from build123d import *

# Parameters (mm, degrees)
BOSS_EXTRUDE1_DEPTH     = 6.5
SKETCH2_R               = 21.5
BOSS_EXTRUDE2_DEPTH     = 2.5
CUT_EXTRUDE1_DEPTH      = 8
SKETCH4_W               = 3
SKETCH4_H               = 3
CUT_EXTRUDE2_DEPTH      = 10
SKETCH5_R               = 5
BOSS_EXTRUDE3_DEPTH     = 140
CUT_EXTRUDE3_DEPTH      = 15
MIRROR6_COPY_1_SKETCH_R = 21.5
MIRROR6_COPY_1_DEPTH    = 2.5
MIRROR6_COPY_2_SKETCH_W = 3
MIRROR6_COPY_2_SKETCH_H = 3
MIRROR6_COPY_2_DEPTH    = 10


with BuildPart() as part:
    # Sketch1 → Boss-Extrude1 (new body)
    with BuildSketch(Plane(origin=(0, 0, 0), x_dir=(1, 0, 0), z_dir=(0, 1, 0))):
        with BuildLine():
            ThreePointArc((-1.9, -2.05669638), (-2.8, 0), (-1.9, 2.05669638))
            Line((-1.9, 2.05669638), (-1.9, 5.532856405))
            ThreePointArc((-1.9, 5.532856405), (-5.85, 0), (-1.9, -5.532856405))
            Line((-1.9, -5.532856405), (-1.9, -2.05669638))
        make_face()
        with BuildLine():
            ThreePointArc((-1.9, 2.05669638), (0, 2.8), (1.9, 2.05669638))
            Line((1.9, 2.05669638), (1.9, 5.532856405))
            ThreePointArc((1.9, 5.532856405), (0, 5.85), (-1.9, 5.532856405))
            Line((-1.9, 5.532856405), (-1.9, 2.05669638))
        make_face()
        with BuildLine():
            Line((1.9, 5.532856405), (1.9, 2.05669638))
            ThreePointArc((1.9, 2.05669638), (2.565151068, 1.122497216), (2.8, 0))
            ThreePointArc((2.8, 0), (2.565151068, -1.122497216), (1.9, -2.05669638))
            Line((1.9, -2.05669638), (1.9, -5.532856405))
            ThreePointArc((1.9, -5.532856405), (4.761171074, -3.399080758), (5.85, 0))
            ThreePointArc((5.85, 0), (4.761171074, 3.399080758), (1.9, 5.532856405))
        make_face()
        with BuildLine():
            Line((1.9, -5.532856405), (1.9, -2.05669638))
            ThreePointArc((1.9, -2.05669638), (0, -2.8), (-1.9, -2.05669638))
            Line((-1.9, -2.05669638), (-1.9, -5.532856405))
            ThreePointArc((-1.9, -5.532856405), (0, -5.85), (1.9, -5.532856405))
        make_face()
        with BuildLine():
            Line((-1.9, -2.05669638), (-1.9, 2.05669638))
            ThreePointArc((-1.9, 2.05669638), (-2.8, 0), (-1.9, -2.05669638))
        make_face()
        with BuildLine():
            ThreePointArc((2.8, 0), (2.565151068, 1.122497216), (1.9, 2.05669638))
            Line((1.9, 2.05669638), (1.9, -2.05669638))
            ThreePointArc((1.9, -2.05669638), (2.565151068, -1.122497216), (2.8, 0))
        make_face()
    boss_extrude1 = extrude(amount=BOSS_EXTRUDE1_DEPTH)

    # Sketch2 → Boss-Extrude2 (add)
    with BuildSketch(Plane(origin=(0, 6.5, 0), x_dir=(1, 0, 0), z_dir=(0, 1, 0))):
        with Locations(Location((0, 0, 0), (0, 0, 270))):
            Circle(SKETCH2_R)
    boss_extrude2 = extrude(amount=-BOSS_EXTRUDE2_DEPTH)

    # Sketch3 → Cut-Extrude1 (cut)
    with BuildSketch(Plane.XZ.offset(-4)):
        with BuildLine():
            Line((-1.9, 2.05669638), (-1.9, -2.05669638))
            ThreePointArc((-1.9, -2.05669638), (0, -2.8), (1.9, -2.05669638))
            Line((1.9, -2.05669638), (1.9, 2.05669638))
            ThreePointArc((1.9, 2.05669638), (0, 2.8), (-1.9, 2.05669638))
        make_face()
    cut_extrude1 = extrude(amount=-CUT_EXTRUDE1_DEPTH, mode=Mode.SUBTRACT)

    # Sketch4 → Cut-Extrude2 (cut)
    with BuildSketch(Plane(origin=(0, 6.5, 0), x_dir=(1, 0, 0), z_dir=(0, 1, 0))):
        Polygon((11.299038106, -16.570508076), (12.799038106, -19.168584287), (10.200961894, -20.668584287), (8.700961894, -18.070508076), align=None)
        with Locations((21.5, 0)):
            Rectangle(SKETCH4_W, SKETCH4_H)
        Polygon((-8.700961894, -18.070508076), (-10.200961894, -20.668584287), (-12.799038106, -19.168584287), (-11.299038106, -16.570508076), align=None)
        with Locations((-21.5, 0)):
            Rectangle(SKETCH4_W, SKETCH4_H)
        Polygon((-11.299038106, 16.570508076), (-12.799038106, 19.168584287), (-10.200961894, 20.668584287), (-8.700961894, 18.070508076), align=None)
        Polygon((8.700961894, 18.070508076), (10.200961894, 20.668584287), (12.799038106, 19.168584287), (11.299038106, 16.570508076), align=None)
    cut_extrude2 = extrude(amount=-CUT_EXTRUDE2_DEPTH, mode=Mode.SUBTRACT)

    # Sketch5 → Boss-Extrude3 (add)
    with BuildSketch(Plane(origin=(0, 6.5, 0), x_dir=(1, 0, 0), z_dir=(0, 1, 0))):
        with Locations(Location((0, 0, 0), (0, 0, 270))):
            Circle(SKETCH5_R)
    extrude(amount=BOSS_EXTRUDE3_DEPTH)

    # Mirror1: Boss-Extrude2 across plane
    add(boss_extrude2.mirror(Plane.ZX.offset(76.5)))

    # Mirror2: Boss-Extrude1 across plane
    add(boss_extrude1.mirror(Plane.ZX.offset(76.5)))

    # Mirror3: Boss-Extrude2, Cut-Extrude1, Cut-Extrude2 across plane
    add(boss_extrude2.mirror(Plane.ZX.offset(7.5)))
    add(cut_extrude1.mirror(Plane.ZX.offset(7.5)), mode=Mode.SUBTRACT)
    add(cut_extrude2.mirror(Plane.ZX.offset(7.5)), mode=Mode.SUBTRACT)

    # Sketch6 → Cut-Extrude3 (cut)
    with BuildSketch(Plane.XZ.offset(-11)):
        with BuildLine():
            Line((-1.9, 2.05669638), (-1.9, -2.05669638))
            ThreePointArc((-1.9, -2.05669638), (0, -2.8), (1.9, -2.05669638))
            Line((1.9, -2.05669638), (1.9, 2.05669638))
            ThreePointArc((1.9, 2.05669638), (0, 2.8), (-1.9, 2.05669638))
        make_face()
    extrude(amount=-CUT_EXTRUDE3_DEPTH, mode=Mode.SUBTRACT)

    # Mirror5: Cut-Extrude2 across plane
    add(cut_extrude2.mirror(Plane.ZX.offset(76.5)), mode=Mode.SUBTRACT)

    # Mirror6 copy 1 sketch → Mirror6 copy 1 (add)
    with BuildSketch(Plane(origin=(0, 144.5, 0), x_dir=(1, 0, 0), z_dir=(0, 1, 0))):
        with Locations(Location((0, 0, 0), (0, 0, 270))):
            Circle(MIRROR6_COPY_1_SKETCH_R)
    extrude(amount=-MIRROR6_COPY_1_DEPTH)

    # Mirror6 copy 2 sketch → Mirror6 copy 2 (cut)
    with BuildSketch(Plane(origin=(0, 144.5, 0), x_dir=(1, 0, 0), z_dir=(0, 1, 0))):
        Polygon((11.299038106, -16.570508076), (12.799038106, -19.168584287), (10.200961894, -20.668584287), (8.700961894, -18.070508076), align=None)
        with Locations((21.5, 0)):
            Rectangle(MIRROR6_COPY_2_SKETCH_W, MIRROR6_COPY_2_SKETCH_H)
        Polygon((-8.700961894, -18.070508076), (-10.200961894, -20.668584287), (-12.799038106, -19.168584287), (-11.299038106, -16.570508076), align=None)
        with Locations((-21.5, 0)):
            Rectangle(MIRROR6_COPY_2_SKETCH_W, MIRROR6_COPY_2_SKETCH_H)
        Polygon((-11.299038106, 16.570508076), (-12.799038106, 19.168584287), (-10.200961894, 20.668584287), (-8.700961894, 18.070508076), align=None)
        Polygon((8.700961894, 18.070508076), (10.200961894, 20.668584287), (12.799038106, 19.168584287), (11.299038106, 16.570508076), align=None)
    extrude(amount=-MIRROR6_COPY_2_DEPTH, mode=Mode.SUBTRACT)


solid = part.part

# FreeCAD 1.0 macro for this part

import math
import FreeCAD as App
import Part
import Sketcher
from FreeCAD import Vector
Q = App.Units.Quantity

doc = App.newDocument("Part")
body = doc.addObject("PartDesign::Body", "Body")

sketch1 = body.newObject("Sketcher::SketchObject", "Sketch")
sketch1.AttachmentSupport = (doc.getObject("XZ_Plane"), [""])
sketch1.MapMode = "FlatFace"
sketch1.addGeometry(Part.ArcOfCircle(Part.Circle(Vector(0, 0, 0), Vector(0, 0, 1), 5.9), math.radians(0), math.radians(71)), False)
sketch1.addGeometry(Part.ArcOfCircle(Part.Circle(Vector(0, 0, 0), Vector(0, 0, 1), 5.9), math.radians(-71), math.radians(0)), False)
sketch1.addGeometry(Part.ArcOfCircle(Part.Circle(Vector(0, 0, 0), Vector(0, 0, 1), 5.8), math.radians(-109), math.radians(-71)), False)
sketch1.addGeometry(Part.ArcOfCircle(Part.Circle(Vector(0, 0, 0), Vector(0, 0, 1), 5.8), math.radians(109), math.radians(251)), False)
sketch1.addGeometry(Part.ArcOfCircle(Part.Circle(Vector(0, 0, 0), Vector(0, 0, 1), 5.8), math.radians(71), math.radians(109)), False)
sketch1.addGeometry(Part.ArcOfCircle(Part.Circle(Vector(0, 0, 0), Vector(0, 0, 1), 2.8), math.radians(-133), math.radians(-47)), False)
sketch1.addGeometry(Part.LineSegment(Vector(1.9, -2.1, 0), Vector(1.9, 2.1, 0)), False)
sketch1.addGeometry(Part.ArcOfCircle(Part.Circle(Vector(0, 0, 0), Vector(0, 0, 1), 2.8), math.radians(47), math.radians(133)), False)
sketch1.addGeometry(Part.LineSegment(Vector(-1.9, 2.1, 0), Vector(-1.9, -2.1, 0)), False)
sketch1.addConstraint(Sketcher.Constraint("Tangent", 0, 1, 1, 2))
sketch1.addConstraint(Sketcher.Constraint("Tangent", 1, 1, 2, 2))
sketch1.addConstraint(Sketcher.Constraint("Tangent", 2, 1, 3, 2))
sketch1.addConstraint(Sketcher.Constraint("Tangent", 3, 1, 4, 2))
sketch1.addConstraint(Sketcher.Constraint("Tangent", 4, 1, 0, 2))
sketch1.addConstraint(Sketcher.Constraint("Coincident", 5, 2, 6, 1))
sketch1.addConstraint(Sketcher.Constraint("Coincident", 6, 2, 7, 1))
sketch1.addConstraint(Sketcher.Constraint("Coincident", 7, 2, 8, 1))
sketch1.addConstraint(Sketcher.Constraint("Coincident", 8, 2, 5, 1))
sketch1.addConstraint(Sketcher.Constraint("Vertical", 6))
sketch1.addConstraint(Sketcher.Constraint("Vertical", 8))
sketch1.addConstraint(Sketcher.Constraint("Coincident", 0, 3, -1, 1))
sketch1.addConstraint(Sketcher.Constraint("Coincident", 2, 3, -1, 1))
sketch1.addConstraint(Sketcher.Constraint("Coincident", 5, 3, -1, 1))
sketch1.addConstraint(Sketcher.Constraint("Coincident", 7, 3, -1, 1))
sketch1.addConstraint(Sketcher.Constraint("Equal", 5, 7))
sketch1.addConstraint(Sketcher.Constraint("PointOnObject", 0, 1, -1))
sketch1.addConstraint(Sketcher.Constraint("Horizontal", 1, 1, 2, 1))
sketch1.addConstraint(Sketcher.Constraint("Horizontal", 3, 1, 4, 1))
sketch1.addConstraint(Sketcher.Constraint("Horizontal", 6, 2, 7, 2))
sketch1.addConstraint(Sketcher.Constraint("Vertical", 2, 1, 3, 1))
sketch1.addConstraint(Sketcher.Constraint("Vertical", 4, 1, 5, 2))
sketch1.addConstraint(Sketcher.Constraint("Radius", 5, 2.8))
sketch1.addConstraint(Sketcher.Constraint("Radius", 0, 5.85))
sketch1.addConstraint(Sketcher.Constraint("DistanceX", -1, 1, 1, 1, 1.9))
pad1 = body.newObject("PartDesign::Pad", "Pad")
pad1.Profile = sketch1
pad1.Length = 6.5
pad1.Reversed = True

sketch2 = body.newObject("Sketcher::SketchObject", "Sketch001")
sketch2.AttachmentSupport = (doc.getObject("XZ_Plane"), [""])
sketch2.MapMode = "FlatFace"
sketch2.AttachmentOffset = App.Placement(Vector(0, 0, -6.5), App.Rotation())
sketch2.addGeometry(Part.Circle(Vector(0, 0, 0), Vector(0, 0, 1), 22), False)
sketch2.addConstraint(Sketcher.Constraint("Coincident", 0, 3, -1, 1))
sketch2.addConstraint(Sketcher.Constraint("Diameter", 0, 43.0))
pad2 = body.newObject("PartDesign::Pad", "Pad001")
pad2.Profile = sketch2
pad2.Length = 2.5

sketch3 = body.newObject("Sketcher::SketchObject", "Sketch002")
sketch3.AttachmentSupport = (doc.getObject("XZ_Plane"), [""])
sketch3.MapMode = "FlatFace"
sketch3.AttachmentOffset = App.Placement(Vector(0, 0, -4), App.Rotation())
sketch3.addGeometry(Part.LineSegment(Vector(-1.9, 2.1, 0), Vector(-1.9, -2.1, 0)), False)
sketch3.addGeometry(Part.ArcOfCircle(Part.Circle(Vector(0, 0, 0), Vector(0, 0, 1), 2.8), math.radians(-133), math.radians(-47)), False)
sketch3.addGeometry(Part.LineSegment(Vector(1.9, -2.1, 0), Vector(1.9, 2.1, 0)), False)
sketch3.addGeometry(Part.ArcOfCircle(Part.Circle(Vector(0, 0, 0), Vector(0, 0, 1), 2.8), math.radians(47), math.radians(133)), False)
sketch3.addConstraint(Sketcher.Constraint("Coincident", 0, 2, 1, 1))
sketch3.addConstraint(Sketcher.Constraint("Coincident", 1, 2, 2, 1))
sketch3.addConstraint(Sketcher.Constraint("Coincident", 2, 2, 3, 1))
sketch3.addConstraint(Sketcher.Constraint("Coincident", 3, 2, 0, 1))
sketch3.addConstraint(Sketcher.Constraint("Vertical", 0))
sketch3.addConstraint(Sketcher.Constraint("Vertical", 2))
sketch3.addConstraint(Sketcher.Constraint("Coincident", 1, 3, -1, 1))
sketch3.addConstraint(Sketcher.Constraint("Coincident", 3, 3, -1, 1))
sketch3.addConstraint(Sketcher.Constraint("Equal", 1, 3))
sketch3.addConstraint(Sketcher.Constraint("Horizontal", 0, 2, 1, 2))
sketch3.addConstraint(Sketcher.Constraint("Radius", 1, 2.8))
sketch3.addConstraint(Sketcher.Constraint("DistanceX", 0, 2, -1, 1, 1.9))
pocket1 = body.newObject("PartDesign::Pocket", "Pocket")
pocket1.Profile = sketch3
pocket1.Length = 8

sketch4 = body.newObject("Sketcher::SketchObject", "Sketch003")
sketch4.AttachmentSupport = (doc.getObject("XZ_Plane"), [""])
sketch4.MapMode = "FlatFace"
sketch4.AttachmentOffset = App.Placement(Vector(0, 0, -6.5), App.Rotation())
sketch4.addGeometry(Part.LineSegment(Vector(12.8, 19.2, 0), Vector(11.3, 16.6, 0)), False)
sketch4.addGeometry(Part.LineSegment(Vector(11.3, 16.6, 0), Vector(8.7, 18.1, 0)), False)
sketch4.addGeometry(Part.LineSegment(Vector(8.7, 18.1, 0), Vector(10.2, 20.7, 0)), False)
sketch4.addGeometry(Part.LineSegment(Vector(10.2, 20.7, 0), Vector(12.8, 19.2, 0)), False)
sketch4.addGeometry(Part.LineSegment(Vector(20, -1.5, 0), Vector(20, 1.5, 0)), False)
sketch4.addGeometry(Part.LineSegment(Vector(20, 1.5, 0), Vector(23, 1.5, 0)), False)
sketch4.addGeometry(Part.LineSegment(Vector(23, 1.5, 0), Vector(23, -1.5, 0)), False)
sketch4.addGeometry(Part.LineSegment(Vector(23, -1.5, 0), Vector(20, -1.5, 0)), False)
sketch4.addGeometry(Part.LineSegment(Vector(-10.2, 20.7, 0), Vector(-8.7, 18.1, 0)), False)
sketch4.addGeometry(Part.LineSegment(Vector(-8.7, 18.1, 0), Vector(-11.3, 16.6, 0)), False)
sketch4.addGeometry(Part.LineSegment(Vector(-11.3, 16.6, 0), Vector(-12.8, 19.2, 0)), False)
sketch4.addGeometry(Part.LineSegment(Vector(-12.8, 19.2, 0), Vector(-10.2, 20.7, 0)), False)
sketch4.addGeometry(Part.LineSegment(Vector(-23, -1.5, 0), Vector(-23, 1.5, 0)), False)
sketch4.addGeometry(Part.LineSegment(Vector(-23, 1.5, 0), Vector(-20, 1.5, 0)), False)
sketch4.addGeometry(Part.LineSegment(Vector(-20, 1.5, 0), Vector(-20, -1.5, 0)), False)
sketch4.addGeometry(Part.LineSegment(Vector(-20, -1.5, 0), Vector(-23, -1.5, 0)), False)
sketch4.addGeometry(Part.LineSegment(Vector(-12.8, -19.2, 0), Vector(-11.3, -16.6, 0)), False)
sketch4.addGeometry(Part.LineSegment(Vector(-11.3, -16.6, 0), Vector(-8.7, -18.1, 0)), False)
sketch4.addGeometry(Part.LineSegment(Vector(-8.7, -18.1, 0), Vector(-10.2, -20.7, 0)), False)
sketch4.addGeometry(Part.LineSegment(Vector(-10.2, -20.7, 0), Vector(-12.8, -19.2, 0)), False)
sketch4.addGeometry(Part.LineSegment(Vector(10.2, -20.7, 0), Vector(8.7, -18.1, 0)), False)
sketch4.addGeometry(Part.LineSegment(Vector(8.7, -18.1, 0), Vector(11.3, -16.6, 0)), False)
sketch4.addGeometry(Part.LineSegment(Vector(11.3, -16.6, 0), Vector(12.8, -19.2, 0)), False)
sketch4.addGeometry(Part.LineSegment(Vector(12.8, -19.2, 0), Vector(10.2, -20.7, 0)), False)
sketch4.addConstraint(Sketcher.Constraint("Coincident", 0, 2, 1, 1))
sketch4.addConstraint(Sketcher.Constraint("Coincident", 1, 2, 2, 1))
sketch4.addConstraint(Sketcher.Constraint("Coincident", 2, 2, 3, 1))
sketch4.addConstraint(Sketcher.Constraint("Coincident", 3, 2, 0, 1))
sketch4.addConstraint(Sketcher.Constraint("Coincident", 4, 2, 5, 1))
sketch4.addConstraint(Sketcher.Constraint("Coincident", 5, 2, 6, 1))
sketch4.addConstraint(Sketcher.Constraint("Coincident", 6, 2, 7, 1))
sketch4.addConstraint(Sketcher.Constraint("Coincident", 7, 2, 4, 1))
sketch4.addConstraint(Sketcher.Constraint("Coincident", 8, 2, 9, 1))
sketch4.addConstraint(Sketcher.Constraint("Coincident", 9, 2, 10, 1))
sketch4.addConstraint(Sketcher.Constraint("Coincident", 10, 2, 11, 1))
sketch4.addConstraint(Sketcher.Constraint("Coincident", 11, 2, 8, 1))
sketch4.addConstraint(Sketcher.Constraint("Coincident", 12, 2, 13, 1))
sketch4.addConstraint(Sketcher.Constraint("Coincident", 13, 2, 14, 1))
sketch4.addConstraint(Sketcher.Constraint("Coincident", 14, 2, 15, 1))
sketch4.addConstraint(Sketcher.Constraint("Coincident", 15, 2, 12, 1))
sketch4.addConstraint(Sketcher.Constraint("Coincident", 16, 2, 17, 1))
sketch4.addConstraint(Sketcher.Constraint("Coincident", 17, 2, 18, 1))
sketch4.addConstraint(Sketcher.Constraint("Coincident", 18, 2, 19, 1))
sketch4.addConstraint(Sketcher.Constraint("Coincident", 19, 2, 16, 1))
sketch4.addConstraint(Sketcher.Constraint("Coincident", 20, 2, 21, 1))
sketch4.addConstraint(Sketcher.Constraint("Coincident", 21, 2, 22, 1))
sketch4.addConstraint(Sketcher.Constraint("Coincident", 22, 2, 23, 1))
sketch4.addConstraint(Sketcher.Constraint("Coincident", 23, 2, 20, 1))
sketch4.addConstraint(Sketcher.Constraint("Vertical", 4))
sketch4.addConstraint(Sketcher.Constraint("Horizontal", 5))
sketch4.addConstraint(Sketcher.Constraint("Vertical", 6))
sketch4.addConstraint(Sketcher.Constraint("Horizontal", 7))
sketch4.addConstraint(Sketcher.Constraint("Vertical", 12))
sketch4.addConstraint(Sketcher.Constraint("Horizontal", 13))
sketch4.addConstraint(Sketcher.Constraint("Vertical", 14))
sketch4.addConstraint(Sketcher.Constraint("Horizontal", 15))
sketch4.addConstraint(Sketcher.Constraint("Symmetric", 6, 2, 12, 2, -1, 1))
sketch4.addConstraint(Sketcher.Constraint("Symmetric", 4, 2, 14, 2, -1, 1))
sketch4.addConstraint(Sketcher.Constraint("Symmetric", 0, 2, 16, 2, -1, 1))
sketch4.addConstraint(Sketcher.Constraint("Symmetric", 1, 2, 17, 2, -1, 1))
sketch4.addConstraint(Sketcher.Constraint("Symmetric", 2, 2, 18, 2, -1, 1))
sketch4.addConstraint(Sketcher.Constraint("Symmetric", 3, 2, 19, 2, -1, 1))
sketch4.addConstraint(Sketcher.Constraint("Symmetric", 8, 2, 20, 2, -1, 1))
sketch4.addConstraint(Sketcher.Constraint("Symmetric", 9, 2, 21, 2, -1, 1))
sketch4.addConstraint(Sketcher.Constraint("Symmetric", 10, 2, 22, 2, -1, 1))
sketch4.addConstraint(Sketcher.Constraint("Symmetric", 11, 2, 23, 2, -1, 1))
sketch4.addConstraint(Sketcher.Constraint("Symmetric", 1, 2, 8, 2, -2))
sketch4.addConstraint(Sketcher.Constraint("Symmetric", 0, 2, 9, 2, -2))
sketch4.addConstraint(Sketcher.Constraint("Symmetric", 3, 2, 10, 2, -2))
sketch4.addConstraint(Sketcher.Constraint("Symmetric", 2, 2, 11, 2, -2))
sketch4.addConstraint(Sketcher.Constraint("Perpendicular", 0, 1))
sketch4.addConstraint(Sketcher.Constraint("Perpendicular", 1, 2))
sketch4.addConstraint(Sketcher.Constraint("Perpendicular", 2, 3))
sketch4.addConstraint(Sketcher.Constraint("Horizontal", 5, 2, 12, 2))
sketch4.addConstraint(Sketcher.Constraint("Equal", 15, 4))
sketch4.addConstraint(Sketcher.Constraint("Equal", 0, 1))
sketch4.addConstraint(Sketcher.Constraint("DistanceX", 5, 1, 5, 2, 3.0))
sketch4.addConstraint(Sketcher.Constraint("Angle", 0, Q("-120 deg")))
sketch4.addConstraint(Sketcher.Constraint("Distance", 0, 3.0))
sketch4.addConstraint(Sketcher.Constraint("DistanceX", -1, 1, 4, 2, 20.0))
sketch4.addConstraint(Sketcher.Constraint("DistanceX", 8, 2, 0, 2, 20.0))
sketch4.addConstraint(Sketcher.Constraint("DistanceY", -1, 1, 0, 2, 16.570508))
pocket2 = body.newObject("PartDesign::Pocket", "Pocket001")
pocket2.Profile = sketch4
pocket2.Length = 10
pocket2.Reversed = True

sketch5 = body.newObject("Sketcher::SketchObject", "Sketch004")
sketch5.AttachmentSupport = (doc.getObject("XZ_Plane"), [""])
sketch5.MapMode = "FlatFace"
sketch5.AttachmentOffset = App.Placement(Vector(0, 0, -6.5), App.Rotation())
sketch5.addGeometry(Part.Circle(Vector(0, 0, 0), Vector(0, 0, 1), 5), False)
sketch5.addConstraint(Sketcher.Constraint("Coincident", 0, 3, -1, 1))
sketch5.addConstraint(Sketcher.Constraint("Diameter", 0, 10.0))
pad3 = body.newObject("PartDesign::Pad", "Pad002")
pad3.Profile = sketch5
pad3.Length = 140
pad3.Reversed = True
doc.recompute()

datumplane = body.newObject("PartDesign::Plane", "DatumPlane")
datumplane.AttachmentSupport = (doc.getObject("XZ_Plane"), [""])
datumplane.MapMode = "FlatFace"
datumplane.AttachmentOffset = App.Placement(Vector(0, 0, -76.5), App.Rotation())
mirrored = body.newObject("PartDesign::Mirrored", "Mirrored")
mirrored.Originals = [pad2]
mirrored.MirrorPlane = (datumplane, [""])
body.Tip = mirrored
doc.recompute()

datumplane2 = body.newObject("PartDesign::Plane", "DatumPlane001")
datumplane2.AttachmentSupport = (doc.getObject("XZ_Plane"), [""])
datumplane2.MapMode = "FlatFace"
datumplane2.AttachmentOffset = App.Placement(Vector(0, 0, -76.5), App.Rotation())
mirrored2 = body.newObject("PartDesign::Mirrored", "Mirrored001")
mirrored2.Originals = [pad1]
mirrored2.MirrorPlane = (datumplane2, [""])
body.Tip = mirrored2
doc.recompute()

datumplane3 = body.newObject("PartDesign::Plane", "DatumPlane002")
datumplane3.AttachmentSupport = (doc.getObject("XZ_Plane"), [""])
datumplane3.MapMode = "FlatFace"
datumplane3.AttachmentOffset = App.Placement(Vector(0, 0, -7.5), App.Rotation())
mirrored3 = body.newObject("PartDesign::Mirrored", "Mirrored002")
mirrored3.Originals = [pad2, pocket1, pocket2]
mirrored3.MirrorPlane = (datumplane3, [""])
body.Tip = mirrored3

sketch6 = body.newObject("Sketcher::SketchObject", "Sketch005")
sketch6.AttachmentSupport = (doc.getObject("XZ_Plane"), [""])
sketch6.MapMode = "FlatFace"
sketch6.AttachmentOffset = App.Placement(Vector(0, 0, -11), App.Rotation())
sketch6.addGeometry(Part.LineSegment(Vector(-1.9, 2.1, 0), Vector(-1.9, -2.1, 0)), False)
sketch6.addGeometry(Part.ArcOfCircle(Part.Circle(Vector(0, 0, 0), Vector(0, 0, 1), 2.8), math.radians(-133), math.radians(-47)), False)
sketch6.addGeometry(Part.LineSegment(Vector(1.9, -2.1, 0), Vector(1.9, 2.1, 0)), False)
sketch6.addGeometry(Part.ArcOfCircle(Part.Circle(Vector(0, 0, 0), Vector(0, 0, 1), 2.8), math.radians(47), math.radians(133)), False)
sketch6.addConstraint(Sketcher.Constraint("Coincident", 0, 2, 1, 1))
sketch6.addConstraint(Sketcher.Constraint("Coincident", 1, 2, 2, 1))
sketch6.addConstraint(Sketcher.Constraint("Coincident", 2, 2, 3, 1))
sketch6.addConstraint(Sketcher.Constraint("Coincident", 3, 2, 0, 1))
sketch6.addConstraint(Sketcher.Constraint("Vertical", 0))
sketch6.addConstraint(Sketcher.Constraint("Vertical", 2))
sketch6.addConstraint(Sketcher.Constraint("Coincident", 1, 3, -1, 1))
sketch6.addConstraint(Sketcher.Constraint("Coincident", 3, 3, -1, 1))
sketch6.addConstraint(Sketcher.Constraint("Equal", 1, 3))
sketch6.addConstraint(Sketcher.Constraint("Horizontal", 0, 2, 1, 2))
sketch6.addConstraint(Sketcher.Constraint("Radius", 1, 2.8))
sketch6.addConstraint(Sketcher.Constraint("DistanceX", 0, 2, -1, 1, 1.9))
pocket3 = body.newObject("PartDesign::Pocket", "Pocket002")
pocket3.Profile = sketch6
pocket3.Length = 15
doc.recompute()

datumplane4 = body.newObject("PartDesign::Plane", "DatumPlane003")
datumplane4.AttachmentSupport = (doc.getObject("XZ_Plane"), [""])
datumplane4.MapMode = "FlatFace"
datumplane4.AttachmentOffset = App.Placement(Vector(0, 0, -76.5), App.Rotation())
mirrored4 = body.newObject("PartDesign::Mirrored", "Mirrored003")
mirrored4.Originals = [pocket2]
mirrored4.MirrorPlane = (datumplane4, [""])
body.Tip = mirrored4

sketch7 = body.newObject("Sketcher::SketchObject", "Sketch006")
sketch7.AttachmentSupport = (doc.getObject("XZ_Plane"), [""])
sketch7.MapMode = "FlatFace"
sketch7.AttachmentOffset = App.Placement(Vector(0, 0, -144.5), App.Rotation())
sketch7.addGeometry(Part.Circle(Vector(0, 0, 0), Vector(0, 0, 1), 22), False)
sketch7.addConstraint(Sketcher.Constraint("Coincident", 0, 3, -1, 1))
sketch7.addConstraint(Sketcher.Constraint("Diameter", 0, 43.0))
pad4 = body.newObject("PartDesign::Pad", "Pad003")
pad4.Profile = sketch7
pad4.Length = 2.5

sketch8 = body.newObject("Sketcher::SketchObject", "Sketch007")
sketch8.AttachmentSupport = (doc.getObject("XZ_Plane"), [""])
sketch8.MapMode = "FlatFace"
sketch8.AttachmentOffset = App.Placement(Vector(0, 0, -144.5), App.Rotation())
sketch8.addGeometry(Part.LineSegment(Vector(12.8, 19.2, 0), Vector(11.3, 16.6, 0)), False)
sketch8.addGeometry(Part.LineSegment(Vector(11.3, 16.6, 0), Vector(8.7, 18.1, 0)), False)
sketch8.addGeometry(Part.LineSegment(Vector(8.7, 18.1, 0), Vector(10.2, 20.7, 0)), False)
sketch8.addGeometry(Part.LineSegment(Vector(10.2, 20.7, 0), Vector(12.8, 19.2, 0)), False)
sketch8.addGeometry(Part.LineSegment(Vector(20, -1.5, 0), Vector(20, 1.5, 0)), False)
sketch8.addGeometry(Part.LineSegment(Vector(20, 1.5, 0), Vector(23, 1.5, 0)), False)
sketch8.addGeometry(Part.LineSegment(Vector(23, 1.5, 0), Vector(23, -1.5, 0)), False)
sketch8.addGeometry(Part.LineSegment(Vector(23, -1.5, 0), Vector(20, -1.5, 0)), False)
sketch8.addGeometry(Part.LineSegment(Vector(-10.2, 20.7, 0), Vector(-8.7, 18.1, 0)), False)
sketch8.addGeometry(Part.LineSegment(Vector(-8.7, 18.1, 0), Vector(-11.3, 16.6, 0)), False)
sketch8.addGeometry(Part.LineSegment(Vector(-11.3, 16.6, 0), Vector(-12.8, 19.2, 0)), False)
sketch8.addGeometry(Part.LineSegment(Vector(-12.8, 19.2, 0), Vector(-10.2, 20.7, 0)), False)
sketch8.addGeometry(Part.LineSegment(Vector(-23, -1.5, 0), Vector(-23, 1.5, 0)), False)
sketch8.addGeometry(Part.LineSegment(Vector(-23, 1.5, 0), Vector(-20, 1.5, 0)), False)
sketch8.addGeometry(Part.LineSegment(Vector(-20, 1.5, 0), Vector(-20, -1.5, 0)), False)
sketch8.addGeometry(Part.LineSegment(Vector(-20, -1.5, 0), Vector(-23, -1.5, 0)), False)
sketch8.addGeometry(Part.LineSegment(Vector(-12.8, -19.2, 0), Vector(-11.3, -16.6, 0)), False)
sketch8.addGeometry(Part.LineSegment(Vector(-11.3, -16.6, 0), Vector(-8.7, -18.1, 0)), False)
sketch8.addGeometry(Part.LineSegment(Vector(-8.7, -18.1, 0), Vector(-10.2, -20.7, 0)), False)
sketch8.addGeometry(Part.LineSegment(Vector(-10.2, -20.7, 0), Vector(-12.8, -19.2, 0)), False)
sketch8.addGeometry(Part.LineSegment(Vector(10.2, -20.7, 0), Vector(8.7, -18.1, 0)), False)
sketch8.addGeometry(Part.LineSegment(Vector(8.7, -18.1, 0), Vector(11.3, -16.6, 0)), False)
sketch8.addGeometry(Part.LineSegment(Vector(11.3, -16.6, 0), Vector(12.8, -19.2, 0)), False)
sketch8.addGeometry(Part.LineSegment(Vector(12.8, -19.2, 0), Vector(10.2, -20.7, 0)), False)
sketch8.addConstraint(Sketcher.Constraint("Coincident", 0, 2, 1, 1))
sketch8.addConstraint(Sketcher.Constraint("Coincident", 1, 2, 2, 1))
sketch8.addConstraint(Sketcher.Constraint("Coincident", 2, 2, 3, 1))
sketch8.addConstraint(Sketcher.Constraint("Coincident", 3, 2, 0, 1))
sketch8.addConstraint(Sketcher.Constraint("Coincident", 4, 2, 5, 1))
sketch8.addConstraint(Sketcher.Constraint("Coincident", 5, 2, 6, 1))
sketch8.addConstraint(Sketcher.Constraint("Coincident", 6, 2, 7, 1))
sketch8.addConstraint(Sketcher.Constraint("Coincident", 7, 2, 4, 1))
sketch8.addConstraint(Sketcher.Constraint("Coincident", 8, 2, 9, 1))
sketch8.addConstraint(Sketcher.Constraint("Coincident", 9, 2, 10, 1))
sketch8.addConstraint(Sketcher.Constraint("Coincident", 10, 2, 11, 1))
sketch8.addConstraint(Sketcher.Constraint("Coincident", 11, 2, 8, 1))
sketch8.addConstraint(Sketcher.Constraint("Coincident", 12, 2, 13, 1))
sketch8.addConstraint(Sketcher.Constraint("Coincident", 13, 2, 14, 1))
sketch8.addConstraint(Sketcher.Constraint("Coincident", 14, 2, 15, 1))
sketch8.addConstraint(Sketcher.Constraint("Coincident", 15, 2, 12, 1))
sketch8.addConstraint(Sketcher.Constraint("Coincident", 16, 2, 17, 1))
sketch8.addConstraint(Sketcher.Constraint("Coincident", 17, 2, 18, 1))
sketch8.addConstraint(Sketcher.Constraint("Coincident", 18, 2, 19, 1))
sketch8.addConstraint(Sketcher.Constraint("Coincident", 19, 2, 16, 1))
sketch8.addConstraint(Sketcher.Constraint("Coincident", 20, 2, 21, 1))
sketch8.addConstraint(Sketcher.Constraint("Coincident", 21, 2, 22, 1))
sketch8.addConstraint(Sketcher.Constraint("Coincident", 22, 2, 23, 1))
sketch8.addConstraint(Sketcher.Constraint("Coincident", 23, 2, 20, 1))
sketch8.addConstraint(Sketcher.Constraint("Vertical", 4))
sketch8.addConstraint(Sketcher.Constraint("Horizontal", 5))
sketch8.addConstraint(Sketcher.Constraint("Vertical", 6))
sketch8.addConstraint(Sketcher.Constraint("Horizontal", 7))
sketch8.addConstraint(Sketcher.Constraint("Vertical", 12))
sketch8.addConstraint(Sketcher.Constraint("Horizontal", 13))
sketch8.addConstraint(Sketcher.Constraint("Vertical", 14))
sketch8.addConstraint(Sketcher.Constraint("Horizontal", 15))
sketch8.addConstraint(Sketcher.Constraint("Symmetric", 6, 2, 12, 2, -1, 1))
sketch8.addConstraint(Sketcher.Constraint("Symmetric", 4, 2, 14, 2, -1, 1))
sketch8.addConstraint(Sketcher.Constraint("Symmetric", 0, 2, 16, 2, -1, 1))
sketch8.addConstraint(Sketcher.Constraint("Symmetric", 1, 2, 17, 2, -1, 1))
sketch8.addConstraint(Sketcher.Constraint("Symmetric", 2, 2, 18, 2, -1, 1))
sketch8.addConstraint(Sketcher.Constraint("Symmetric", 3, 2, 19, 2, -1, 1))
sketch8.addConstraint(Sketcher.Constraint("Symmetric", 8, 2, 20, 2, -1, 1))
sketch8.addConstraint(Sketcher.Constraint("Symmetric", 9, 2, 21, 2, -1, 1))
sketch8.addConstraint(Sketcher.Constraint("Symmetric", 10, 2, 22, 2, -1, 1))
sketch8.addConstraint(Sketcher.Constraint("Symmetric", 11, 2, 23, 2, -1, 1))
sketch8.addConstraint(Sketcher.Constraint("Symmetric", 1, 2, 8, 2, -2))
sketch8.addConstraint(Sketcher.Constraint("Symmetric", 0, 2, 9, 2, -2))
sketch8.addConstraint(Sketcher.Constraint("Symmetric", 3, 2, 10, 2, -2))
sketch8.addConstraint(Sketcher.Constraint("Symmetric", 2, 2, 11, 2, -2))
sketch8.addConstraint(Sketcher.Constraint("Perpendicular", 0, 1))
sketch8.addConstraint(Sketcher.Constraint("Perpendicular", 1, 2))
sketch8.addConstraint(Sketcher.Constraint("Perpendicular", 2, 3))
sketch8.addConstraint(Sketcher.Constraint("Horizontal", 5, 2, 12, 2))
sketch8.addConstraint(Sketcher.Constraint("Equal", 15, 4))
sketch8.addConstraint(Sketcher.Constraint("Equal", 0, 1))
sketch8.addConstraint(Sketcher.Constraint("DistanceX", 5, 1, 5, 2, 3.0))
sketch8.addConstraint(Sketcher.Constraint("Angle", 0, Q("-120 deg")))
sketch8.addConstraint(Sketcher.Constraint("Distance", 0, 3.0))
sketch8.addConstraint(Sketcher.Constraint("DistanceX", -1, 1, 4, 2, 20.0))
sketch8.addConstraint(Sketcher.Constraint("DistanceX", 8, 2, 0, 2, 20.0))
sketch8.addConstraint(Sketcher.Constraint("DistanceY", -1, 1, 0, 2, 16.570508))
pocket4 = body.newObject("PartDesign::Pocket", "Pocket003")
pocket4.Profile = sketch8
pocket4.Length = 10
pocket4.Reversed = True

doc.recompute()
